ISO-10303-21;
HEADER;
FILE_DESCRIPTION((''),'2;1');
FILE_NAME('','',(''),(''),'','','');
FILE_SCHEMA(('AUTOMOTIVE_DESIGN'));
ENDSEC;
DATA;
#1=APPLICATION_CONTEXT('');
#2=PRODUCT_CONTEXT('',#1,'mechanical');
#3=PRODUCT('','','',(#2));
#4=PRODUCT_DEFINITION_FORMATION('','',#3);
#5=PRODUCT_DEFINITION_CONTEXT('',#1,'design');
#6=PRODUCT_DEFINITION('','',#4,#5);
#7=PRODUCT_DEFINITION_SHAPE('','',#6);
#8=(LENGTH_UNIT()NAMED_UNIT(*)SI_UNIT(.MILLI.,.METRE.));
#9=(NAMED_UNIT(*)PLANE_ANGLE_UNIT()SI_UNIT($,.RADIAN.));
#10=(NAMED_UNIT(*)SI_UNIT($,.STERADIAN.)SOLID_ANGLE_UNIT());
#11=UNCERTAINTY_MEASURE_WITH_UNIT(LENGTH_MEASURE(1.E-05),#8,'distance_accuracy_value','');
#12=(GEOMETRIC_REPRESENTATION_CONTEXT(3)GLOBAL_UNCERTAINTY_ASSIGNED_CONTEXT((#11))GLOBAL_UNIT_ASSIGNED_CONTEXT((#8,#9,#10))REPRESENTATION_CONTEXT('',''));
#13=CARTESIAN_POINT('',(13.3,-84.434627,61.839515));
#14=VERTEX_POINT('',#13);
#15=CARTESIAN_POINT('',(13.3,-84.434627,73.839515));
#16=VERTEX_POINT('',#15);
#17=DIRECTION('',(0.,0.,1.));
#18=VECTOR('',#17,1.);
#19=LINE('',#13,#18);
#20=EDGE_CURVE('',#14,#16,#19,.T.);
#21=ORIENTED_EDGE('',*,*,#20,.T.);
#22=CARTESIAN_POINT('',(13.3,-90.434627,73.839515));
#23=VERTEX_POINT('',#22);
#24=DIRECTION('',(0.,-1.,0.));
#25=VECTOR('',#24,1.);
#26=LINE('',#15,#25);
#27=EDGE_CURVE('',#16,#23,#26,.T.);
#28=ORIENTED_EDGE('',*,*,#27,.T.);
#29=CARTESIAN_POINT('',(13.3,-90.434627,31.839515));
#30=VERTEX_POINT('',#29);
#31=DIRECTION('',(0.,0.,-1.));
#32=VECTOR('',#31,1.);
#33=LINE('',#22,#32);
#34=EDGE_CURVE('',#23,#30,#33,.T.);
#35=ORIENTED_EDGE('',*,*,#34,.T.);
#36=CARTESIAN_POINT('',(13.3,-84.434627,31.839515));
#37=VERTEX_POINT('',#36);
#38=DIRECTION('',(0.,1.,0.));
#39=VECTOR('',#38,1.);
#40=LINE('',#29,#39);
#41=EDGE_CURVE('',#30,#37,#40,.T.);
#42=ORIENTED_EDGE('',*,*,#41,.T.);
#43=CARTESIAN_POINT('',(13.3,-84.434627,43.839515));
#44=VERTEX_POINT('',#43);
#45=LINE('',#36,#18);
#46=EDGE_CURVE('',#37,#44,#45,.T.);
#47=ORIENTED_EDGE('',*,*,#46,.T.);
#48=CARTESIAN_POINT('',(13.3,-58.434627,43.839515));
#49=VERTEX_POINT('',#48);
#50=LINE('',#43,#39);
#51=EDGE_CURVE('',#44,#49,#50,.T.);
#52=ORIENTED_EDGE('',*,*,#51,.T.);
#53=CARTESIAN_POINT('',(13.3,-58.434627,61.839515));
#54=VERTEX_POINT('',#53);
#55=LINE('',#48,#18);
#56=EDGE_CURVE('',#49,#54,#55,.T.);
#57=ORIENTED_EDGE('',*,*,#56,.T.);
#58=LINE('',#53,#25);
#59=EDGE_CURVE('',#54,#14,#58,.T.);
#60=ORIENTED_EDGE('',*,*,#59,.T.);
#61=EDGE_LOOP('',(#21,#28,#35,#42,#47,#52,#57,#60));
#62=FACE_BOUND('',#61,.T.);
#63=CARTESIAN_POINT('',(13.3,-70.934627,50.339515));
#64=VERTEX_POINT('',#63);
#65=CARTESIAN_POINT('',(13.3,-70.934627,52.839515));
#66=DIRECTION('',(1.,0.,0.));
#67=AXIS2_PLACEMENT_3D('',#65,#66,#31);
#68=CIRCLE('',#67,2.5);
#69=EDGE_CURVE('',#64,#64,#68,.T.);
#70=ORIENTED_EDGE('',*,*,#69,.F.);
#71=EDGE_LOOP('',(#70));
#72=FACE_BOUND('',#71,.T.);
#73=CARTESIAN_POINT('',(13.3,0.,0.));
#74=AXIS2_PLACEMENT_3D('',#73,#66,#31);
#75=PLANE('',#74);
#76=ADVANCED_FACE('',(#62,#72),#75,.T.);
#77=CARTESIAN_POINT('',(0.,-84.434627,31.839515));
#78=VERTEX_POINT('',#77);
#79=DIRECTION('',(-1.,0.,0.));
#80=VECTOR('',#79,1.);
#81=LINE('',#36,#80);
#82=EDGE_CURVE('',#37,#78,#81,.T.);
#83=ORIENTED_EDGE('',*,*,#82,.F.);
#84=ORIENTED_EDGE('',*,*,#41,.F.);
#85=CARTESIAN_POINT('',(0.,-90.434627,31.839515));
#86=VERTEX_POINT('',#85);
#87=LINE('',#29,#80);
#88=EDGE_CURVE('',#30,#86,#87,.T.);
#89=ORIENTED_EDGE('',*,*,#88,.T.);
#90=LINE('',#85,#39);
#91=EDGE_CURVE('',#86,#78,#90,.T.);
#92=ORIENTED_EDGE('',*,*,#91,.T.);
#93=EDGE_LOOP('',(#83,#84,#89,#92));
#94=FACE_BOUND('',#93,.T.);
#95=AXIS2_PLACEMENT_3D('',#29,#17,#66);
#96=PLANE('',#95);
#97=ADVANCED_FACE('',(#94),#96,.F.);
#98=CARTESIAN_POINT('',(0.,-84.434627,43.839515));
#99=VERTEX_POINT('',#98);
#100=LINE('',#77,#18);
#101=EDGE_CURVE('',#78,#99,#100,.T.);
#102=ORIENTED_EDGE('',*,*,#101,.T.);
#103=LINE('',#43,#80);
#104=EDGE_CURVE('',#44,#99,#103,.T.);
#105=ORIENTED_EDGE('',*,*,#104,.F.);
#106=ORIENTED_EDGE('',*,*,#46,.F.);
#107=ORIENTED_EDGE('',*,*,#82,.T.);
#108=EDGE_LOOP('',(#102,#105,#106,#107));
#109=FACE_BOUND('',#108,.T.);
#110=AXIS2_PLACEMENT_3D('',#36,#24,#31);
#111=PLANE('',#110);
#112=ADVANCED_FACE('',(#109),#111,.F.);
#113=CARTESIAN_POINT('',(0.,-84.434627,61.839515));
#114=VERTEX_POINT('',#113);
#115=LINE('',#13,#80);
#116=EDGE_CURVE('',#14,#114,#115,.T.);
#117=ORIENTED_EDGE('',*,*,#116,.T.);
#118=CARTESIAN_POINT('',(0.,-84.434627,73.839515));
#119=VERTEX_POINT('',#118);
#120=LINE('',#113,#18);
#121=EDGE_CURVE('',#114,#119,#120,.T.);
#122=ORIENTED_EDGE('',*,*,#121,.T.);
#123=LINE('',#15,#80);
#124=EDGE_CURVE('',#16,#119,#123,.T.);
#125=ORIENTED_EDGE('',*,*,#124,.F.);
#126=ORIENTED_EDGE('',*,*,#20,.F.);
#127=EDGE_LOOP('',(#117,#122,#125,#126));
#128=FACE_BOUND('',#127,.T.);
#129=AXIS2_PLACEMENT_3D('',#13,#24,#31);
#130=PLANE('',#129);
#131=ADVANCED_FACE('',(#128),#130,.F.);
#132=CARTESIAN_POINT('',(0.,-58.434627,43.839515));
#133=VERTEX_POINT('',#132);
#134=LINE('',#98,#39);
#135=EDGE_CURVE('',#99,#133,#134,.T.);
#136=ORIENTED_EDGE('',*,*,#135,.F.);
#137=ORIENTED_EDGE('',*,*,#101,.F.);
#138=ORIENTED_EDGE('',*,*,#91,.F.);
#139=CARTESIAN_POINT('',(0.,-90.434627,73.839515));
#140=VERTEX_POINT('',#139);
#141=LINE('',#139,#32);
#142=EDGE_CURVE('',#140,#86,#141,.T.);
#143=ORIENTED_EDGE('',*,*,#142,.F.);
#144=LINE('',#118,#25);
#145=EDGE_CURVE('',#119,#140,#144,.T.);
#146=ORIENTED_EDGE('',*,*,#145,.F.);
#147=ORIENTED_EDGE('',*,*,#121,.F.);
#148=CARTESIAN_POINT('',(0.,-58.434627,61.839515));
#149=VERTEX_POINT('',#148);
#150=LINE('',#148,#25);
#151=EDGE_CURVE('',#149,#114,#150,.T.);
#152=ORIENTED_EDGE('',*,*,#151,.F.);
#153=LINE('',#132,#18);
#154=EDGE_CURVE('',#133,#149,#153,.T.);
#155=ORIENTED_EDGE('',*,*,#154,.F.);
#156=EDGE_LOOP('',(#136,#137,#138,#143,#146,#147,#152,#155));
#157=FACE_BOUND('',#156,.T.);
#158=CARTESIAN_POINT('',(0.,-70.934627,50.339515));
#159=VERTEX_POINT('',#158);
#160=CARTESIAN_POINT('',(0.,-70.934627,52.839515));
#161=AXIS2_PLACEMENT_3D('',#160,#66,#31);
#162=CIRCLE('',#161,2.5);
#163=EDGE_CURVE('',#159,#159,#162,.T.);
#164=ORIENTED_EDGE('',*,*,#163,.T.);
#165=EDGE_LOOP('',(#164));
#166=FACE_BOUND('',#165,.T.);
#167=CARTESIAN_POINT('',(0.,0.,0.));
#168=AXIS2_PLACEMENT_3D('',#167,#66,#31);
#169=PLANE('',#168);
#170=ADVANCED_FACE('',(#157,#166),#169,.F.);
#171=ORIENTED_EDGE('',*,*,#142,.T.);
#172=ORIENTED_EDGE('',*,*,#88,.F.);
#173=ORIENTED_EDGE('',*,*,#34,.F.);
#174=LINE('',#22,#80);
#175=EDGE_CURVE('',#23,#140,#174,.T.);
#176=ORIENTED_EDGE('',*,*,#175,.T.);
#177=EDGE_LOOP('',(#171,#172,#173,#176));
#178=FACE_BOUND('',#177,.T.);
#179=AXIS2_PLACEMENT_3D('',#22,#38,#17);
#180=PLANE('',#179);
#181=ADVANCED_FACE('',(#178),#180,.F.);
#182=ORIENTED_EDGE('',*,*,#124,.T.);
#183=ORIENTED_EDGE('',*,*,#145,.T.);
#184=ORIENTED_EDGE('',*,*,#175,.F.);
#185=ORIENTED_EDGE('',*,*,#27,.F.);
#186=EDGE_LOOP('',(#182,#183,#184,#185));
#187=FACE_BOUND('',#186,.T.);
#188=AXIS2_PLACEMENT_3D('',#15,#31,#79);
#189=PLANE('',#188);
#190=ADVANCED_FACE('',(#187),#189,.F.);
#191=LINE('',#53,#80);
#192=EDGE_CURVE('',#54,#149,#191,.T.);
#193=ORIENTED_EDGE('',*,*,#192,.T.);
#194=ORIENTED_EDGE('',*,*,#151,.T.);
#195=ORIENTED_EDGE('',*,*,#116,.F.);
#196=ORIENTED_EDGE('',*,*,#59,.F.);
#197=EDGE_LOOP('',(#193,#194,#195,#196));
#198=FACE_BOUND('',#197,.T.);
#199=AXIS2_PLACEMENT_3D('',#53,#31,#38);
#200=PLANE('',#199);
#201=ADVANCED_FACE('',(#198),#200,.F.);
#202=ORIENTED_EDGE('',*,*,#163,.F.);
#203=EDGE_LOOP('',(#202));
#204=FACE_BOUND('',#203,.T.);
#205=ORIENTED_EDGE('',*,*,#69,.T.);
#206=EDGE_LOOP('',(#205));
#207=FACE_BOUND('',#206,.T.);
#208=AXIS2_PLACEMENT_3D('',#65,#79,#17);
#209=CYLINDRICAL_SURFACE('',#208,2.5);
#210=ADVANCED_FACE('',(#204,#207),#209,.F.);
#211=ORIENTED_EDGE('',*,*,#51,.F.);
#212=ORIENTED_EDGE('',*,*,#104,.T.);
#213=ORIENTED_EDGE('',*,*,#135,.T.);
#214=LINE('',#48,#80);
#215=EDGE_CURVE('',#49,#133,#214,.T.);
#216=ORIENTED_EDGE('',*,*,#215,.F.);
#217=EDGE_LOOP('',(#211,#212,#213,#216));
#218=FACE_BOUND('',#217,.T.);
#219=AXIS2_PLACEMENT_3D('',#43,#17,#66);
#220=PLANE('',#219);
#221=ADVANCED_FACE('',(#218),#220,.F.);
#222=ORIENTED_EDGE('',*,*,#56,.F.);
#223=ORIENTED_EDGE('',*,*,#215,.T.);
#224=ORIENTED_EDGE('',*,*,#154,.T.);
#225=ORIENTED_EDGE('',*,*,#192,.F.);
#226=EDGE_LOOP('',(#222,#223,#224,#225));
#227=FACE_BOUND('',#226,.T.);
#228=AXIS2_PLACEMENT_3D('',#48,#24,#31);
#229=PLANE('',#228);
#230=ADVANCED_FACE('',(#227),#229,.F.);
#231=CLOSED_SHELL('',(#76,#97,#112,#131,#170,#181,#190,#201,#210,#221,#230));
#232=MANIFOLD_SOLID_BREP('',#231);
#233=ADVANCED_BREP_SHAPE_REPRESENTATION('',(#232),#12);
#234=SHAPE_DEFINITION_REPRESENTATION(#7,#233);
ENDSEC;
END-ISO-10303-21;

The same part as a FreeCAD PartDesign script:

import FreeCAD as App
import Part
import Sketcher

V = App.Vector

doc = App.newDocument("Part")
params = doc.addObject("Spreadsheet::Sheet", "Params")
for row, (alias, value) in enumerate([
    ("sketch1_diameter", "5 mm"),
    ("sketch1_width", "6 mm"),
    ("sketch1_width2", "26 mm"),
    ("sketch1_height", "42 mm"),
    ("sketch1_height2", "12 mm"),
    ("pad1_length", "13.3 mm"),
], start=1):
    params.set(f"A{row}", alias)
    params.set(f"B{row}", "=" + value)
    params.setAlias(f"B{row}", alias)

body = doc.addObject("PartDesign::Body", "Body")

sketch1 = doc.addObject("Sketcher::SketchObject", "Sketch")
body.addObject(sketch1)
sketch1.AttachmentSupport = (doc.YZ_Plane, [""])
sketch1.MapMode = "FlatFace"
sketch1.addGeometry([
    Part.LineSegment(V(-90.434627, 73.839515, 0), V(-90.434627, 31.839515, 0)),
    Part.LineSegment(V(-90.434627, 31.839515, 0), V(-84.434627, 31.839515, 0)),
    Part.LineSegment(V(-84.434627, 31.839515, 0), V(-84.434627, 43.839515, 0)),
    Part.LineSegment(V(-84.434627, 43.839515, 0), V(-58.434627, 43.839515, 0)),
    Part.LineSegment(V(-58.434627, 43.839515, 0), V(-58.434627, 61.839515, 0)),
    Part.LineSegment(V(-58.434627, 61.839515, 0), V(-84.434627, 61.839515, 0)),
    Part.LineSegment(V(-84.434627, 61.839515, 0), V(-84.434627, 73.839515, 0)),
    Part.LineSegment(V(-84.434627, 73.839515, 0), V(-90.434627, 73.839515, 0)),
    Part.Circle(V(-70.934627, 52.839515, 0), V(0, 0, 1), 2.5),
], False)
sketch1.addConstraint([
    Sketcher.Constraint("Coincident", 0, 2, 1, 1),
    Sketcher.Constraint("Coincident", 1, 2, 2, 1),
    Sketcher.Constraint("Coincident", 2, 2, 3, 1),
    Sketcher.Constraint("Coincident", 3, 2, 4, 1),
    Sketcher.Constraint("Coincident", 4, 2, 5, 1),
    Sketcher.Constraint("Coincident", 5, 2, 6, 1),
    Sketcher.Constraint("Coincident", 6, 2, 7, 1),
    Sketcher.Constraint("Coincident", 7, 2, 0, 1),
    Sketcher.Constraint("Vertical", 0),
    Sketcher.Constraint("Horizontal", 1),
    Sketcher.Constraint("Vertical", 2),
    Sketcher.Constraint("Horizontal", 3),
    Sketcher.Constraint("Vertical", 4),
    Sketcher.Constraint("Horizontal", 5),
    Sketcher.Constraint("Vertical", 6),
    Sketcher.Constraint("Horizontal", 7),
    Sketcher.Constraint("Vertical", 2, 2, 5, 2),
    Sketcher.Constraint("Equal", 2, 6),
    Sketcher.Constraint("Diameter", 8, 5.0),
    Sketcher.Constraint("DistanceX", 1, 1, 1, 2, 6.0),
    Sketcher.Constraint("DistanceX", 3, 1, 3, 2, 26.0),
    Sketcher.Constraint("DistanceY", 0, 2, 0, 1, 42.0),
    Sketcher.Constraint("DistanceY", 2, 1, 2, 2, 12.0),
    Sketcher.Constraint("DistanceY", 0, 2, 8, 3, 21.0),
    Sketcher.Constraint("DistanceX", 0, 2, 8, 3, 19.5),
    Sketcher.Constraint("DistanceX", 8, 3, -1, 1, 70.934627),
    Sketcher.Constraint("DistanceY", -1, 1, 8, 3, 52.839515),
])
sketch1.setExpression("Constraints[18]", "Params.sketch1_diameter")
sketch1.setExpression("Constraints[19]", "Params.sketch1_width")
sketch1.setExpression("Constraints[20]", "Params.sketch1_width2")
sketch1.setExpression("Constraints[21]", "Params.sketch1_height")
sketch1.setExpression("Constraints[22]", "Params.sketch1_height2")
pad1 = doc.addObject("PartDesign::Pad", "Pad")
body.addObject(pad1)
pad1.Profile = sketch1
pad1.setExpression("Length", "Params.pad1_length")

doc.recompute()
